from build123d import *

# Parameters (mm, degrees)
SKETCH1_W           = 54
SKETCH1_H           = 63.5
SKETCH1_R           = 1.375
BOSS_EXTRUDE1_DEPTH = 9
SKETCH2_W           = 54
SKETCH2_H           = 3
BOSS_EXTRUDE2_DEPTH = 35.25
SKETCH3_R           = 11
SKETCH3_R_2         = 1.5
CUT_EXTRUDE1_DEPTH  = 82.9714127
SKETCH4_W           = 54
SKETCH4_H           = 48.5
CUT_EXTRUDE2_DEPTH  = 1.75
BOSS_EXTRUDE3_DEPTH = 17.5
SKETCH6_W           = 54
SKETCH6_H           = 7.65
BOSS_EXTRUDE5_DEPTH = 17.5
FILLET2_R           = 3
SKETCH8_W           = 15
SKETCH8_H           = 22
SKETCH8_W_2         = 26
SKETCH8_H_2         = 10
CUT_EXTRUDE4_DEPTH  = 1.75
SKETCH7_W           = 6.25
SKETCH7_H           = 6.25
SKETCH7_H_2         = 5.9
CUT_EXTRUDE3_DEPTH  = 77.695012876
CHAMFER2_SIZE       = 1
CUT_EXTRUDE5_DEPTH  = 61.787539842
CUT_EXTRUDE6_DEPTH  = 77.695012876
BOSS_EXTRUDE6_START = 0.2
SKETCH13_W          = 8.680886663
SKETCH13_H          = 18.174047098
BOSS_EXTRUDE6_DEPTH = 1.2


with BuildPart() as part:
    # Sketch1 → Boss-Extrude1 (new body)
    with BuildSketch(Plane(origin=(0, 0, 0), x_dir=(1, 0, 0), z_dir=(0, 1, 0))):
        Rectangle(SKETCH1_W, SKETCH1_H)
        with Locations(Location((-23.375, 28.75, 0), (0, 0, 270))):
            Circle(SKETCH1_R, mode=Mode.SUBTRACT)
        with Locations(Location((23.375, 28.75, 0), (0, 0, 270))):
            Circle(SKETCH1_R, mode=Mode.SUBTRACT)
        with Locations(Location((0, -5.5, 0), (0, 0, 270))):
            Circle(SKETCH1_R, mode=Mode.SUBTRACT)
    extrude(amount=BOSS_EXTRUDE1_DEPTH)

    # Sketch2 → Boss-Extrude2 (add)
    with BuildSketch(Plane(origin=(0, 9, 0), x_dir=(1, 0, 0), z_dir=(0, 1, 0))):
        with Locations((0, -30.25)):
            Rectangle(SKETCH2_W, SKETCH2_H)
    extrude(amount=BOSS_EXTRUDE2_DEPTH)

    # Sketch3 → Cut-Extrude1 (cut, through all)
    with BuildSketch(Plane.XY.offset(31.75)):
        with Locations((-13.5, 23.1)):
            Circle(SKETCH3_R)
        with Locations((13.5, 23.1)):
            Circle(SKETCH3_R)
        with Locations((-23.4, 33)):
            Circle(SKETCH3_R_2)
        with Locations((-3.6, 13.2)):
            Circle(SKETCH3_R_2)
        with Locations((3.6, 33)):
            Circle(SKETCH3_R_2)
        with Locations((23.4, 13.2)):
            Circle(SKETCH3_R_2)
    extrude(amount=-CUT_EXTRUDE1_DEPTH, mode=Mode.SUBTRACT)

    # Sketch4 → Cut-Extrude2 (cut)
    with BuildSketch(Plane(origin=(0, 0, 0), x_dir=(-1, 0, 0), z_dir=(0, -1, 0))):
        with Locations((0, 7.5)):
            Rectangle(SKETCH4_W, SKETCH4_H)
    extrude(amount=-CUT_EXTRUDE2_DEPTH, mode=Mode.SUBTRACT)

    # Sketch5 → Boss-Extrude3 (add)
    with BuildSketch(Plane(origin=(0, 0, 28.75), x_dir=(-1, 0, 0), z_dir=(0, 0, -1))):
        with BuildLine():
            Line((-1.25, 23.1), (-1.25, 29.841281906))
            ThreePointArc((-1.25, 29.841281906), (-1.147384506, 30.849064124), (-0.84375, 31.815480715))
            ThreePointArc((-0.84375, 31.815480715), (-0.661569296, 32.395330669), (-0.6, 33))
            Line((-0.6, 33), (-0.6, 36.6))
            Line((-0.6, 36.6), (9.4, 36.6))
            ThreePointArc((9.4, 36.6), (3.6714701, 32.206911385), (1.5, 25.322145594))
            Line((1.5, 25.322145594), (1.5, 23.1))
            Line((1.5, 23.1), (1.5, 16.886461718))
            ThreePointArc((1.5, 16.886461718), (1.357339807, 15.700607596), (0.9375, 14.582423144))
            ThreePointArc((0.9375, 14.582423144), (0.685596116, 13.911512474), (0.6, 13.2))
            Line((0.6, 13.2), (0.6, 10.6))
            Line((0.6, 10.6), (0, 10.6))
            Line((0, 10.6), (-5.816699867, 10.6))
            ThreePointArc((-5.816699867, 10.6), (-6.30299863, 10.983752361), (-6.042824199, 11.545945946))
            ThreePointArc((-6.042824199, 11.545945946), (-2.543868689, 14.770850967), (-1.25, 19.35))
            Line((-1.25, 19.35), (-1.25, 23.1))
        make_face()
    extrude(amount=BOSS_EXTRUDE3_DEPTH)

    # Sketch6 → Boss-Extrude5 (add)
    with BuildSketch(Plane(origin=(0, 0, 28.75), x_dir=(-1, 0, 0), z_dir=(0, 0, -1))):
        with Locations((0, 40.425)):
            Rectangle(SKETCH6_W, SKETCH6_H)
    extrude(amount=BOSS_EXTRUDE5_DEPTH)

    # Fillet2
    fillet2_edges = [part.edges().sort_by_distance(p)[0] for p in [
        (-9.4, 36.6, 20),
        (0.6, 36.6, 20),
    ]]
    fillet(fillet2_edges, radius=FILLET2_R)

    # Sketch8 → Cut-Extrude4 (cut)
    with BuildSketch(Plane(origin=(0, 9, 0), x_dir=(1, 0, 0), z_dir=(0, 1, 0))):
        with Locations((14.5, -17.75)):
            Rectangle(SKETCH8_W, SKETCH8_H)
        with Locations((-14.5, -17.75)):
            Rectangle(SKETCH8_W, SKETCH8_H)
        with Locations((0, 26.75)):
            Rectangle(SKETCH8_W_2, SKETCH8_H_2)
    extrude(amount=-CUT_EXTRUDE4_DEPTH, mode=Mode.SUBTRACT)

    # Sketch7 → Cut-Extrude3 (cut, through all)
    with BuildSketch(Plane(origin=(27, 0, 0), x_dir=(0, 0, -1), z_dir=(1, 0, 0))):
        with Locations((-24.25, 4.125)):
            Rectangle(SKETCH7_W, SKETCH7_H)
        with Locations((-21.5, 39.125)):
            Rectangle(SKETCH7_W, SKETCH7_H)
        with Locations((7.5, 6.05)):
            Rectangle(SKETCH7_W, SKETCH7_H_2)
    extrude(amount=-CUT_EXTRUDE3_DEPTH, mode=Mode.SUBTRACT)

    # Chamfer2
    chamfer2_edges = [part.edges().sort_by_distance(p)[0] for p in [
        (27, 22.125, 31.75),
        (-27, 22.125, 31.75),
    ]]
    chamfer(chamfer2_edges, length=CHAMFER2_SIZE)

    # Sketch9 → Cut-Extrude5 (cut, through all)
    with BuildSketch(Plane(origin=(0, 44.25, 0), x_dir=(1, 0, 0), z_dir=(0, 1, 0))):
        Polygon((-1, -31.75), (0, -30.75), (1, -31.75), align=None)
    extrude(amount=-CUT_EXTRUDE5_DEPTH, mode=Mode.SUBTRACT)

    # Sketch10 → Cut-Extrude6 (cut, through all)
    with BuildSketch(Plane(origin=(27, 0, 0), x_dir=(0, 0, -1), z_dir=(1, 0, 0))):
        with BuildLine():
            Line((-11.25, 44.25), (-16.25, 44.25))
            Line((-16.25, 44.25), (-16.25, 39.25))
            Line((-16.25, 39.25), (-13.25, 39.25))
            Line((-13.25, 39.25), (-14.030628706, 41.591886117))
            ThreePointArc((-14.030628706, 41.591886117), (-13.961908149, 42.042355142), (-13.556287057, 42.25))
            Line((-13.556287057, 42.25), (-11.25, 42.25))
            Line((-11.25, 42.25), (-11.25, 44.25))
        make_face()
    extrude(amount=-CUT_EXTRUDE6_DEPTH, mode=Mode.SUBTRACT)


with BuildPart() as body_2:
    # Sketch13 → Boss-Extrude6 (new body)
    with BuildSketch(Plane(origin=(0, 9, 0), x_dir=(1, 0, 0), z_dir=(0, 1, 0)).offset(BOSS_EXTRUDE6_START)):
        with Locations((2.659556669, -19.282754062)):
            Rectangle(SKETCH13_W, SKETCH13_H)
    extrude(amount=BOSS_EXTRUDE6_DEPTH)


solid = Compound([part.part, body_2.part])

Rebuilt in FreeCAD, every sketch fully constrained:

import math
import FreeCAD as App
import Part
import Sketcher
Q = App.Units.Quantity


def edges_at(feature, points):
    """Names of the edges that pass closest to the given points."""
    edges = feature.Shape.Edges
    near = lambda p: min(range(len(edges)), key=lambda i: edges[i].distToShape(Part.Vertex(*p))[0])
    return sorted({f"Edge{near(p) + 1}" for p in points})

doc = App.newDocument("Part")
body = doc.addObject("PartDesign::Body", "Body")

# Sketch on XZ plane
sketch1 = body.newObject("Sketcher::SketchObject", "Sketch")
sketch1.AttachmentSupport = (doc.getObject("XZ_Plane"), [""])
sketch1.MapMode = "FlatFace"
sketch1.addGeometry(Part.LineSegment(App.Vector(-27, -31.8, 0), App.Vector(-27, 31.8, 0)), False)
sketch1.addGeometry(Part.LineSegment(App.Vector(-27, 31.8, 0), App.Vector(27, 31.8, 0)), False)
sketch1.addGeometry(Part.LineSegment(App.Vector(27, 31.8, 0), App.Vector(27, -31.8, 0)), False)
sketch1.addGeometry(Part.LineSegment(App.Vector(27, -31.8, 0), App.Vector(-27, -31.8, 0)), False)
sketch1.addGeometry(Part.Circle(App.Vector(0, 5.5, 0), App.Vector(0, 0, 1), 1.4), False)
sketch1.addGeometry(Part.Circle(App.Vector(-23.4, -28.8, 0), App.Vector(0, 0, 1), 1.4), False)
sketch1.addGeometry(Part.Circle(App.Vector(23.4, -28.8, 0), App.Vector(0, 0, 1), 1.4), False)
sketch1.addConstraint(Sketcher.Constraint("Coincident", 0, 2, 1, 1))
sketch1.addConstraint(Sketcher.Constraint("Coincident", 1, 2, 2, 1))
sketch1.addConstraint(Sketcher.Constraint("Coincident", 2, 2, 3, 1))
sketch1.addConstraint(Sketcher.Constraint("Coincident", 3, 2, 0, 1))
sketch1.addConstraint(Sketcher.Constraint("Vertical", 0))
sketch1.addConstraint(Sketcher.Constraint("Horizontal", 1))
sketch1.addConstraint(Sketcher.Constraint("Vertical", 2))
sketch1.addConstraint(Sketcher.Constraint("Horizontal", 3))
sketch1.addConstraint(Sketcher.Constraint("Equal", 4, 5))
sketch1.addConstraint(Sketcher.Constraint("Equal", 5, 6))
sketch1.addConstraint(Sketcher.Constraint("Symmetric", 0, 2, 2, 2, -1, 1))
sketch1.addConstraint(Sketcher.Constraint("Symmetric", 5, 3, 6, 3, -2))
sketch1.addConstraint(Sketcher.Constraint("PointOnObject", 4, 3, -2))
sketch1.addConstraint(Sketcher.Constraint("Diameter", 4, Q("2.75 mm")))
sketch1.addConstraint(Sketcher.Constraint("DistanceX", 1, 1, 1, 2, Q("54 mm")))
sketch1.addConstraint(Sketcher.Constraint("DistanceY", 0, 1, 0, 2, Q("63.5 mm")))
sketch1.addConstraint(Sketcher.Constraint("DistanceY", 2, 2, 6, 3, Q("3 mm")))
sketch1.addConstraint(Sketcher.Constraint("DistanceY", -1, 1, 4, 3, Q("5.5 mm")))
sketch1.addConstraint(Sketcher.Constraint("DistanceX", 5, 3, 6, 3, Q("46.75 mm")))
pad1 = body.newObject("PartDesign::Pad", "Pad")
pad1.Profile = sketch1
pad1.Length = 9
pad1.Reversed = True

# Sketch on XZ plane
sketch2 = body.newObject("Sketcher::SketchObject", "Sketch001")
sketch2.AttachmentSupport = (doc.getObject("XZ_Plane"), [""])
sketch2.MapMode = "FlatFace"
sketch2.AttachmentOffset = App.Placement(App.Vector(0, 0, -9), App.Rotation())
sketch2.addGeometry(Part.LineSegment(App.Vector(-27, 28.8, 0), App.Vector(-27, 31.8, 0)), False)
sketch2.addGeometry(Part.LineSegment(App.Vector(-27, 31.8, 0), App.Vector(27, 31.8, 0)), False)
sketch2.addGeometry(Part.LineSegment(App.Vector(27, 31.8, 0), App.Vector(27, 28.8, 0)), False)
sketch2.addGeometry(Part.LineSegment(App.Vector(27, 28.8, 0), App.Vector(-27, 28.8, 0)), False)
sketch2.addConstraint(Sketcher.Constraint("Coincident", 0, 2, 1, 1))
sketch2.addConstraint(Sketcher.Constraint("Coincident", 1, 2, 2, 1))
sketch2.addConstraint(Sketcher.Constraint("Coincident", 2, 2, 3, 1))
sketch2.addConstraint(Sketcher.Constraint("Coincident", 3, 2, 0, 1))
sketch2.addConstraint(Sketcher.Constraint("Vertical", 0))
sketch2.addConstraint(Sketcher.Constraint("Horizontal", 1))
sketch2.addConstraint(Sketcher.Constraint("Vertical", 2))
sketch2.addConstraint(Sketcher.Constraint("Horizontal", 3))
sketch2.addConstraint(Sketcher.Constraint("DistanceX", 1, 1, 1, 2, Q("54 mm")))
sketch2.addConstraint(Sketcher.Constraint("DistanceY", 0, 1, 0, 2, Q("3 mm")))
sketch2.addConstraint(Sketcher.Constraint("DistanceX", 0, 2, -1, 1, Q("27 mm")))
sketch2.addConstraint(Sketcher.Constraint("DistanceY", -1, 1, 0, 2, Q("31.75 mm")))
pad2 = body.newObject("PartDesign::Pad", "Pad001")
pad2.Profile = sketch2
pad2.Length = 35.25
pad2.Reversed = True

# Sketch on XY plane
sketch3 = body.newObject("Sketcher::SketchObject", "Sketch002")
sketch3.AttachmentSupport = (doc.getObject("XY_Plane"), [""])
sketch3.MapMode = "FlatFace"
sketch3.AttachmentOffset = App.Placement(App.Vector(0, 0, 31.75), App.Rotation())
sketch3.addGeometry(Part.Circle(App.Vector(-13.5, 23.1, 0), App.Vector(0, 0, 1), 11), False)
sketch3.addGeometry(Part.Circle(App.Vector(13.5, 23.1, 0), App.Vector(0, 0, 1), 11), False)
sketch3.addGeometry(Part.Circle(App.Vector(-23.4, 33, 0), App.Vector(0, 0, 1), 1.5), False)
sketch3.addGeometry(Part.Circle(App.Vector(-3.6, 13.2, 0), App.Vector(0, 0, 1), 1.5), False)
sketch3.addGeometry(Part.Circle(App.Vector(3.6, 33, 0), App.Vector(0, 0, 1), 1.5), False)
sketch3.addGeometry(Part.Circle(App.Vector(23.4, 13.2, 0), App.Vector(0, 0, 1), 1.5), False)
sketch3.addConstraint(Sketcher.Constraint("Equal", 0, 1))
sketch3.addConstraint(Sketcher.Constraint("Equal", 2, 3))
sketch3.addConstraint(Sketcher.Constraint("Equal", 3, 4))
sketch3.addConstraint(Sketcher.Constraint("Equal", 4, 5))
sketch3.addConstraint(Sketcher.Constraint("Symmetric", 0, 3, 1, 3, -2))
sketch3.addConstraint(Sketcher.Constraint("Horizontal", 2, 3, 4, 3))
sketch3.addConstraint(Sketcher.Constraint("Horizontal", 3, 3, 5, 3))
sketch3.addConstraint(Sketcher.Constraint("Diameter", 0, Q("22 mm")))
sketch3.addConstraint(Sketcher.Constraint("Diameter", 2, Q("3 mm")))
sketch3.addConstraint(Sketcher.Constraint("DistanceY", -1, 1, 2, 3, Q("33 mm")))
sketch3.addConstraint(Sketcher.Constraint("DistanceX", 0, 3, 1, 3, Q("27 mm")))
sketch3.addConstraint(Sketcher.Constraint("DistanceX", 2, 3, 4, 3, Q("27 mm")))
sketch3.addConstraint(Sketcher.Constraint("DistanceX", 3, 3, 5, 3, Q("27 mm")))
sketch3.addConstraint(Sketcher.Constraint("DistanceY", -1, 1, 0, 3, Q("23.1 mm")))
sketch3.addConstraint(Sketcher.Constraint("DistanceX", 2, 3, -1, 1, Q("23.4 mm")))
sketch3.addConstraint(Sketcher.Constraint("DistanceX", 3, 3, -1, 1, Q("3.6 mm")))
sketch3.addConstraint(Sketcher.Constraint("DistanceY", -1, 1, 3, 3, Q("13.2 mm")))
pocket1 = body.newObject("PartDesign::Pocket", "Pocket")
pocket1.Profile = sketch3
pocket1.Type = "ThroughAll"

# Sketch on XZ plane
sketch4 = body.newObject("Sketcher::SketchObject", "Sketch003")
sketch4.AttachmentSupport = (doc.getObject("XZ_Plane"), [""])
sketch4.MapMode = "FlatFace"
sketch4.addGeometry(Part.LineSegment(App.Vector(27, -32, 0), App.Vector(27, 17, 0)), False)
sketch4.addGeometry(Part.LineSegment(App.Vector(27, 17, 0), App.Vector(-27, 17, 0)), False)
sketch4.addGeometry(Part.LineSegment(App.Vector(-27, 17, 0), App.Vector(-27, -32, 0)), False)
sketch4.addGeometry(Part.LineSegment(App.Vector(-27, -32, 0), App.Vector(27, -32, 0)), False)
sketch4.addConstraint(Sketcher.Constraint("Coincident", 0, 2, 1, 1))
sketch4.addConstraint(Sketcher.Constraint("Coincident", 1, 2, 2, 1))
sketch4.addConstraint(Sketcher.Constraint("Coincident", 2, 2, 3, 1))
sketch4.addConstraint(Sketcher.Constraint("Coincident", 3, 2, 0, 1))
sketch4.addConstraint(Sketcher.Constraint("Vertical", 0))
sketch4.addConstraint(Sketcher.Constraint("Horizontal", 1))
sketch4.addConstraint(Sketcher.Constraint("Vertical", 2))
sketch4.addConstraint(Sketcher.Constraint("Horizontal", 3))
sketch4.addConstraint(Sketcher.Constraint("DistanceX", 1, 2, 1, 1, Q("54 mm")))
sketch4.addConstraint(Sketcher.Constraint("DistanceY", 0, 1, 0, 2, Q("48.5 mm")))
sketch4.addConstraint(Sketcher.Constraint("DistanceX", -1, 1, 0, 2, Q("27 mm")))
sketch4.addConstraint(Sketcher.Constraint("DistanceY", -1, 1, 0, 2, Q("16.75 mm")))
pocket2 = body.newObject("PartDesign::Pocket", "Pocket001")
pocket2.Profile = sketch4
pocket2.Length = 1.75

# Sketch on XY plane
sketch5 = body.newObject("Sketcher::SketchObject", "Sketch004")
sketch5.AttachmentSupport = (doc.getObject("XY_Plane"), [""])
sketch5.MapMode = "FlatFace"
sketch5.AttachmentOffset = App.Placement(App.Vector(0, 0, 28.75), App.Rotation())
sketch5.addGeometry(Part.ArcOfCircle(Part.Circle(App.Vector(-3.8, 29.8, 0), App.Vector(0, 0, 1), 5), math.radians(0), math.radians(23)), False)
sketch5.addGeometry(Part.LineSegment(App.Vector(1.2, 29.8, 0), App.Vector(1.2, 19.4, 0)), False)
sketch5.addGeometry(Part.ArcOfCircle(Part.Circle(App.Vector(10, 19.4, 0), App.Vector(0, 0, 1), 8.8), math.radians(-180), math.radians(-117)), False)
sketch5.addGeometry(Part.ArcOfCircle(Part.Circle(App.Vector(5.8, 11.1, 0), App.Vector(0, 0, 1), 0.5), math.radians(-90), math.radians(63)), False)
sketch5.addGeometry(Part.LineSegment(App.Vector(5.8, 10.6, 0), App.Vector(-0.6, 10.6, 0)), False)
sketch5.addGeometry(Part.LineSegment(App.Vector(-0.6, 10.6, 0), App.Vector(-0.6, 13.2, 0)), False)
sketch5.addGeometry(Part.ArcOfCircle(Part.Circle(App.Vector(-3.6, 13.2, 0), App.Vector(0, 0, 1), 3), math.radians(0), math.radians(27)), False)
sketch5.addGeometry(Part.ArcOfCircle(Part.Circle(App.Vector(3.5, 16.9, 0), App.Vector(0, 0, 1), 5), math.radians(-180), math.radians(-153)), False)
sketch5.addGeometry(Part.LineSegment(App.Vector(-1.5, 16.9, 0), App.Vector(-1.5, 25.3, 0)), False)
sketch5.addGeometry(Part.ArcOfCircle(Part.Circle(App.Vector(-13.5, 25.3, 0), App.Vector(0, 0, 1), 12), math.radians(0), math.radians(70)), False)
sketch5.addGeometry(Part.LineSegment(App.Vector(-9.4, 36.6, 0), App.Vector(0.6, 36.6, 0)), False)
sketch5.addGeometry(Part.LineSegment(App.Vector(0.6, 36.6, 0), App.Vector(0.6, 33, 0)), False)
sketch5.addGeometry(Part.ArcOfCircle(Part.Circle(App.Vector(3.6, 33, 0), App.Vector(0, 0, 1), 3), math.radians(180), math.radians(203)), False)
sketch5.addConstraint(Sketcher.Constraint("Tangent", 0, 1, 1, 1))
sketch5.addConstraint(Sketcher.Constraint("Tangent", 1, 2, 2, 1))
sketch5.addConstraint(Sketcher.Constraint("Tangent", 2, 2, 3, 2))
sketch5.addConstraint(Sketcher.Constraint("Tangent", 3, 1, 4, 1))
sketch5.addConstraint(Sketcher.Constraint("Coincident", 4, 2, 5, 1))
sketch5.addConstraint(Sketcher.Constraint("Tangent", 5, 2, 6, 1))
sketch5.addConstraint(Sketcher.Constraint("Tangent", 6, 2, 7, 2))
sketch5.addConstraint(Sketcher.Constraint("Tangent", 7, 1, 8, 1))
sketch5.addConstraint(Sketcher.Constraint("Tangent", 8, 2, 9, 1))
sketch5.addConstraint(Sketcher.Constraint("Coincident", 9, 2, 10, 1))
sketch5.addConstraint(Sketcher.Constraint("Coincident", 10, 2, 11, 1))
sketch5.addConstraint(Sketcher.Constraint("Tangent", 11, 2, 12, 1))
sketch5.addConstraint(Sketcher.Constraint("Tangent", 12, 2, 0, 2))
sketch5.addConstraint(Sketcher.Constraint("Vertical", 1))
sketch5.addConstraint(Sketcher.Constraint("Horizontal", 4))
sketch5.addConstraint(Sketcher.Constraint("Vertical", 5))
sketch5.addConstraint(Sketcher.Constraint("Vertical", 8))
sketch5.addConstraint(Sketcher.Constraint("Horizontal", 10))
sketch5.addConstraint(Sketcher.Constraint("Vertical", 11))
sketch5.addConstraint(Sketcher.Constraint("Equal", 0, 7))
sketch5.addConstraint(Sketcher.Constraint("Equal", 6, 12))
sketch5.addConstraint(Sketcher.Constraint("Radius", 0, Q("5 mm")))
sketch5.addConstraint(Sketcher.Constraint("Radius", 6, Q("3 mm")))
sketch5.addConstraint(Sketcher.Constraint("Radius", 9, Q("12 mm")))
sketch5.addConstraint(Sketcher.Constraint("Radius", 3, Q("0.5 mm")))
sketch5.addConstraint(Sketcher.Constraint("DistanceX", 10, 1, 10, 2, Q("10 mm")))
sketch5.addConstraint(Sketcher.Constraint("Radius", 2, Q("8.75 mm")))
sketch5.addConstraint(Sketcher.Constraint("DistanceY", 5, 1, 5, 2, Q("2.6 mm")))
sketch5.addConstraint(Sketcher.Constraint("DistanceY", 11, 2, 11, 1, Q("3.6 mm")))
sketch5.addConstraint(Sketcher.Constraint("DistanceX", -1, 1, 2, 3, Q("10 mm")))
sketch5.addConstraint(Sketcher.Constraint("DistanceY", -1, 1, 12, 3, Q("33 mm")))
sketch5.addConstraint(Sketcher.Constraint("DistanceY", -1, 1, 3, 3, Q("11.1 mm")))
sketch5.addConstraint(Sketcher.Constraint("DistanceX", 6, 3, -1, 1, Q("3.6 mm")))
sketch5.addConstraint(Sketcher.Constraint("DistanceX", -1, 1, 7, 3, Q("3.5 mm")))
sketch5.addConstraint(Sketcher.Constraint("DistanceX", -1, 1, 12, 3, Q("3.6 mm")))
sketch5.addConstraint(Sketcher.Constraint("DistanceY", -1, 1, 2, 3, Q("19.35 mm")))
pad3 = body.newObject("PartDesign::Pad", "Pad002")
pad3.Profile = sketch5
pad3.Length = 17.5
pad3.Reversed = True

# Sketch on XY plane
sketch6 = body.newObject("Sketcher::SketchObject", "Sketch005")
sketch6.AttachmentSupport = (doc.getObject("XY_Plane"), [""])
sketch6.MapMode = "FlatFace"
sketch6.AttachmentOffset = App.Placement(App.Vector(0, 0, 28.75), App.Rotation())
sketch6.addGeometry(Part.LineSegment(App.Vector(27, 44, 0), App.Vector(27, 37, 0)), False)
sketch6.addGeometry(Part.LineSegment(App.Vector(27, 37, 0), App.Vector(-27, 37, 0)), False)
sketch6.addGeometry(Part.LineSegment(App.Vector(-27, 37, 0), App.Vector(-27, 44, 0)), False)
sketch6.addGeometry(Part.LineSegment(App.Vector(-27, 44, 0), App.Vector(27, 44, 0)), False)
sketch6.addConstraint(Sketcher.Constraint("Coincident", 0, 2, 1, 1))
sketch6.addConstraint(Sketcher.Constraint("Coincident", 1, 2, 2, 1))
sketch6.addConstraint(Sketcher.Constraint("Coincident", 2, 2, 3, 1))
sketch6.addConstraint(Sketcher.Constraint("Coincident", 3, 2, 0, 1))
sketch6.addConstraint(Sketcher.Constraint("Vertical", 0))
sketch6.addConstraint(Sketcher.Constraint("Horizontal", 1))
sketch6.addConstraint(Sketcher.Constraint("Vertical", 2))
sketch6.addConstraint(Sketcher.Constraint("Horizontal", 3))
sketch6.addConstraint(Sketcher.Constraint("DistanceX", 1, 2, 1, 1, Q("54 mm")))
sketch6.addConstraint(Sketcher.Constraint("DistanceX", -1, 1, 0, 2, Q("27 mm")))
sketch6.addConstraint(Sketcher.Constraint("DistanceY", 0, 2, 0, 1, Q("7.65 mm")))
sketch6.addConstraint(Sketcher.Constraint("DistanceY", -1, 1, 0, 2, Q("36.6 mm")))
pad4 = body.newObject("PartDesign::Pad", "Pad003")
pad4.Profile = sketch6
pad4.Length = 17.5
pad4.Reversed = True
doc.recompute()

fillet = body.newObject("PartDesign::Fillet", "Fillet")
fillet.Base = (pad4, edges_at(pad4, [(-9.4, 36.6, 20), (0.6, 36.6, 20)]))
fillet.Radius = 3

# Sketch on XZ plane
sketch7 = body.newObject("Sketcher::SketchObject", "Sketch006")
sketch7.AttachmentSupport = (doc.getObject("XZ_Plane"), [""])
sketch7.MapMode = "FlatFace"
sketch7.AttachmentOffset = App.Placement(App.Vector(0, 0, -9), App.Rotation())
sketch7.addGeometry(Part.LineSegment(App.Vector(7, 7, 0), App.Vector(7, 29, 0)), False)
sketch7.addGeometry(Part.LineSegment(App.Vector(7, 29, 0), App.Vector(22, 29, 0)), False)
sketch7.addGeometry(Part.LineSegment(App.Vector(22, 29, 0), App.Vector(22, 7, 0)), False)
sketch7.addGeometry(Part.LineSegment(App.Vector(22, 7, 0), App.Vector(7, 7, 0)), False)
sketch7.addGeometry(Part.LineSegment(App.Vector(-22, 7, 0), App.Vector(-22, 29, 0)), False)
sketch7.addGeometry(Part.LineSegment(App.Vector(-22, 29, 0), App.Vector(-7, 29, 0)), False)
sketch7.addGeometry(Part.LineSegment(App.Vector(-7, 29, 0), App.Vector(-7, 7, 0)), False)
sketch7.addGeometry(Part.LineSegment(App.Vector(-7, 7, 0), App.Vector(-22, 7, 0)), False)
sketch7.addGeometry(Part.LineSegment(App.Vector(-13, -32, 0), App.Vector(-13, -22, 0)), False)
sketch7.addGeometry(Part.LineSegment(App.Vector(-13, -22, 0), App.Vector(13, -22, 0)), False)
sketch7.addGeometry(Part.LineSegment(App.Vector(13, -22, 0), App.Vector(13, -32, 0)), False)
sketch7.addGeometry(Part.LineSegment(App.Vector(13, -32, 0), App.Vector(-13, -32, 0)), False)
sketch7.addConstraint(Sketcher.Constraint("Coincident", 0, 2, 1, 1))
sketch7.addConstraint(Sketcher.Constraint("Coincident", 1, 2, 2, 1))
sketch7.addConstraint(Sketcher.Constraint("Coincident", 2, 2, 3, 1))
sketch7.addConstraint(Sketcher.Constraint("Coincident", 3, 2, 0, 1))
sketch7.addConstraint(Sketcher.Constraint("Coincident", 4, 2, 5, 1))
sketch7.addConstraint(Sketcher.Constraint("Coincident", 5, 2, 6, 1))
sketch7.addConstraint(Sketcher.Constraint("Coincident", 6, 2, 7, 1))
sketch7.addConstraint(Sketcher.Constraint("Coincident", 7, 2, 4, 1))
sketch7.addConstraint(Sketcher.Constraint("Coincident", 8, 2, 9, 1))
sketch7.addConstraint(Sketcher.Constraint("Coincident", 9, 2, 10, 1))
sketch7.addConstraint(Sketcher.Constraint("Coincident", 10, 2, 11, 1))
sketch7.addConstraint(Sketcher.Constraint("Coincident", 11, 2, 8, 1))
sketch7.addConstraint(Sketcher.Constraint("Vertical", 0))
sketch7.addConstraint(Sketcher.Constraint("Horizontal", 1))
sketch7.addConstraint(Sketcher.Constraint("Vertical", 2))
sketch7.addConstraint(Sketcher.Constraint("Horizontal", 3))
sketch7.addConstraint(Sketcher.Constraint("Vertical", 4))
sketch7.addConstraint(Sketcher.Constraint("Horizontal", 5))
sketch7.addConstraint(Sketcher.Constraint("Vertical", 6))
sketch7.addConstraint(Sketcher.Constraint("Horizontal", 7))
sketch7.addConstraint(Sketcher.Constraint("Vertical", 8))
sketch7.addConstraint(Sketcher.Constraint("Horizontal", 9))
sketch7.addConstraint(Sketcher.Constraint("Vertical", 10))
sketch7.addConstraint(Sketcher.Constraint("Horizontal", 11))
sketch7.addConstraint(Sketcher.Constraint("Symmetric", 1, 2, 4, 2, -2))
sketch7.addConstraint(Sketcher.Constraint("Symmetric", 3, 2, 6, 2, -2))
sketch7.addConstraint(Sketcher.Constraint("DistanceX", 1, 1, 1, 2, Q("15 mm")))
sketch7.addConstraint(Sketcher.Constraint("DistanceX", 9, 1, 9, 2, Q("26 mm")))
sketch7.addConstraint(Sketcher.Constraint("DistanceY", 0, 1, 0, 2, Q("22 mm")))
sketch7.addConstraint(Sketcher.Constraint("DistanceY", 8, 1, 8, 2, Q("10 mm")))
sketch7.addConstraint(Sketcher.Constraint("DistanceX", -1, 1, 0, 2, Q("7 mm")))
sketch7.addConstraint(Sketcher.Constraint("DistanceX", 8, 2, -1, 1, Q("13 mm")))
sketch7.addConstraint(Sketcher.Constraint("DistanceY", 8, 2, 6, 2, Q("28.5 mm")))
sketch7.addConstraint(Sketcher.Constraint("DistanceY", -1, 1, 0, 2, Q("28.75 mm")))
pocket3 = body.newObject("PartDesign::Pocket", "Pocket002")
pocket3.Profile = sketch7
pocket3.Length = 1.75
pocket3.Reversed = True

# Sketch on YZ plane
sketch8 = body.newObject("Sketcher::SketchObject", "Sketch007")
sketch8.AttachmentSupport = (doc.getObject("YZ_Plane"), [""])
sketch8.MapMode = "FlatFace"
sketch8.AttachmentOffset = App.Placement(App.Vector(0, 0, 27), App.Rotation())
sketch8.addGeometry(Part.LineSegment(App.Vector(7, 27, 0), App.Vector(1, 27, 0)), False)
sketch8.addGeometry(Part.LineSegment(App.Vector(1, 27, 0), App.Vector(1, 21, 0)), False)
sketch8.addGeometry(Part.LineSegment(App.Vector(1, 21, 0), App.Vector(7, 21, 0)), False)
sketch8.addGeometry(Part.LineSegment(App.Vector(7, 21, 0), App.Vector(7, 27, 0)), False)
sketch8.addGeometry(Part.LineSegment(App.Vector(42, 25, 0), App.Vector(36, 25, 0)), False)
sketch8.addGeometry(Part.LineSegment(App.Vector(36, 25, 0), App.Vector(36, 18, 0)), False)
sketch8.addGeometry(Part.LineSegment(App.Vector(36, 18, 0), App.Vector(42, 18, 0)), False)
sketch8.addGeometry(Part.LineSegment(App.Vector(42, 18, 0), App.Vector(42, 25, 0)), False)
sketch8.addGeometry(Part.LineSegment(App.Vector(9, -4, 0), App.Vector(3, -4, 0)), False)
sketch8.addGeometry(Part.LineSegment(App.Vector(3, -4, 0), App.Vector(3, -11, 0)), False)
sketch8.addGeometry(Part.LineSegment(App.Vector(3, -11, 0), App.Vector(9, -11, 0)), False)
sketch8.addGeometry(Part.LineSegment(App.Vector(9, -11, 0), App.Vector(9, -4, 0)), False)
sketch8.addConstraint(Sketcher.Constraint("Coincident", 0, 2, 1, 1))
sketch8.addConstraint(Sketcher.Constraint("Coincident", 1, 2, 2, 1))
sketch8.addConstraint(Sketcher.Constraint("Coincident", 2, 2, 3, 1))
sketch8.addConstraint(Sketcher.Constraint("Coincident", 3, 2, 0, 1))
sketch8.addConstraint(Sketcher.Constraint("Coincident", 4, 2, 5, 1))
sketch8.addConstraint(Sketcher.Constraint("Coincident", 5, 2, 6, 1))
sketch8.addConstraint(Sketcher.Constraint("Coincident", 6, 2, 7, 1))
sketch8.addConstraint(Sketcher.Constraint("Coincident", 7, 2, 4, 1))
sketch8.addConstraint(Sketcher.Constraint("Coincident", 8, 2, 9, 1))
sketch8.addConstraint(Sketcher.Constraint("Coincident", 9, 2, 10, 1))
sketch8.addConstraint(Sketcher.Constraint("Coincident", 10, 2, 11, 1))
sketch8.addConstraint(Sketcher.Constraint("Coincident", 11, 2, 8, 1))
sketch8.addConstraint(Sketcher.Constraint("Horizontal", 0))
sketch8.addConstraint(Sketcher.Constraint("Vertical", 1))
sketch8.addConstraint(Sketcher.Constraint("Horizontal", 2))
sketch8.addConstraint(Sketcher.Constraint("Vertical", 3))
sketch8.addConstraint(Sketcher.Constraint("Horizontal", 4))
sketch8.addConstraint(Sketcher.Constraint("Vertical", 5))
sketch8.addConstraint(Sketcher.Constraint("Horizontal", 6))
sketch8.addConstraint(Sketcher.Constraint("Vertical", 7))
sketch8.addConstraint(Sketcher.Constraint("Horizontal", 8))
sketch8.addConstraint(Sketcher.Constraint("Vertical", 9))
sketch8.addConstraint(Sketcher.Constraint("Horizontal", 10))
sketch8.addConstraint(Sketcher.Constraint("Vertical", 11))
sketch8.addConstraint(Sketcher.Constraint("Equal", 2, 4))
sketch8.addConstraint(Sketcher.Constraint("Equal", 6, 1))
sketch8.addConstraint(Sketcher.Constraint("Equal", 3, 5))
sketch8.addConstraint(Sketcher.Constraint("Equal", 7, 9))
sketch8.addConstraint(Sketcher.Constraint("DistanceX", 8, 2, 8, 1, Q("5.9 mm")))
sketch8.addConstraint(Sketcher.Constraint("DistanceX", -1, 1, 0, 2, Q("1 mm")))
sketch8.addConstraint(Sketcher.Constraint("DistanceX", -1, 1, 4, 2, Q("36 mm")))
sketch8.addConstraint(Sketcher.Constraint("DistanceX", -1, 1, 10, 2, Q("9 mm")))
sketch8.addConstraint(Sketcher.Constraint("DistanceY", 5, 2, 3, 2, Q("9 mm")))
sketch8.addConstraint(Sketcher.Constraint("DistanceY", 9, 2, 0, 2, Q("38 mm")))
sketch8.addConstraint(Sketcher.Constraint("DistanceX", 0, 2, 0, 1, Q("6.25 mm")))
sketch8.addConstraint(Sketcher.Constraint("DistanceY", -1, 1, 0, 2, Q("27.375 mm")))
pocket4 = body.newObject("PartDesign::Pocket", "Pocket003")
pocket4.Profile = sketch8
pocket4.Type = "ThroughAll"
doc.recompute()

chamfer = body.newObject("PartDesign::Chamfer", "Chamfer")
chamfer.Base = (pocket4, edges_at(pocket4, [(27, 22.125, 31.75), (-27, 22.125, 31.75)]))
chamfer.Size = 1

# Sketch on XZ plane
sketch9 = body.newObject("Sketcher::SketchObject", "Sketch008")
sketch9.AttachmentSupport = (doc.getObject("XZ_Plane"), [""])
sketch9.MapMode = "FlatFace"
sketch9.AttachmentOffset = App.Placement(App.Vector(0, 0, -44.25), App.Rotation())
sketch9.addGeometry(Part.LineSegment(App.Vector(0, 30.8, 0), App.Vector(-1, 31.8, 0)), False)
sketch9.addGeometry(Part.LineSegment(App.Vector(-1, 31.8, 0), App.Vector(1, 31.8, 0)), False)
sketch9.addGeometry(Part.LineSegment(App.Vector(1, 31.8, 0), App.Vector(0, 30.8, 0)), False)
sketch9.addConstraint(Sketcher.Constraint("Coincident", 0, 2, 1, 1))
sketch9.addConstraint(Sketcher.Constraint("Coincident", 1, 2, 2, 1))
sketch9.addConstraint(Sketcher.Constraint("Coincident", 2, 2, 0, 1))
sketch9.addConstraint(Sketcher.Constraint("Horizontal", 1))
sketch9.addConstraint(Sketcher.Constraint("PointOnObject", 2, 2, -2))
sketch9.addConstraint(Sketcher.Constraint("Perpendicular", 0, 2))
sketch9.addConstraint(Sketcher.Constraint("Equal", 0, 2))
sketch9.addConstraint(Sketcher.Constraint("DistanceX", 1, 1, 1, 2, Q("2 mm")))
sketch9.addConstraint(Sketcher.Constraint("DistanceY", -1, 1, 0, 2, Q("31.75 mm")))
pocket5 = body.newObject("PartDesign::Pocket", "Pocket004")
pocket5.Profile = sketch9
pocket5.Type = "ThroughAll"
pocket5.Reversed = True

# Sketch on YZ plane
sketch10 = body.newObject("Sketcher::SketchObject", "Sketch009")
sketch10.AttachmentSupport = (doc.getObject("YZ_Plane"), [""])
sketch10.MapMode = "FlatFace"
sketch10.AttachmentOffset = App.Placement(App.Vector(0, 0, 27), App.Rotation())
sketch10.addGeometry(Part.LineSegment(App.Vector(44.2, 11.2, 0), App.Vector(44.2, 16.2, 0)), False)
sketch10.addGeometry(Part.LineSegment(App.Vector(44.2, 16.2, 0), App.Vector(39.2, 16.2, 0)), False)
sketch10.addGeometry(Part.LineSegment(App.Vector(39.2, 16.2, 0), App.Vector(39.2, 13.2, 0)), False)
sketch10.addGeometry(Part.LineSegment(App.Vector(39.2, 13.2, 0), App.Vector(41.6, 14, 0)), False)
sketch10.addGeometry(Part.ArcOfCircle(Part.Circle(App.Vector(41.7, 13.6, 0), App.Vector(0, 0, 1), 0.5), math.radians(0), math.radians(108)), False)
sketch10.addGeometry(Part.LineSegment(App.Vector(42.2, 13.6, 0), App.Vector(42.2, 11.2, 0)), False)
sketch10.addGeometry(Part.LineSegment(App.Vector(42.2, 11.2, 0), App.Vector(44.2, 11.2, 0)), False)
sketch10.addConstraint(Sketcher.Constraint("Coincident", 0, 2, 1, 1))
sketch10.addConstraint(Sketcher.Constraint("Coincident", 1, 2, 2, 1))
sketch10.addConstraint(Sketcher.Constraint("Coincident", 2, 2, 3, 1))
sketch10.addConstraint(Sketcher.Constraint("Tangent", 3, 2, 4, 2))
sketch10.addConstraint(Sketcher.Constraint("Tangent", 4, 1, 5, 1))
sketch10.addConstraint(Sketcher.Constraint("Coincident", 5, 2, 6, 1))
sketch10.addConstraint(Sketcher.Constraint("Coincident", 6, 2, 0, 1))
sketch10.addConstraint(Sketcher.Constraint("Vertical", 0))
sketch10.addConstraint(Sketcher.Constraint("Horizontal", 1))
sketch10.addConstraint(Sketcher.Constraint("Vertical", 2))
sketch10.addConstraint(Sketcher.Constraint("Vertical", 5))
sketch10.addConstraint(Sketcher.Constraint("Horizontal", 6))
sketch10.addConstraint(Sketcher.Constraint("Equal", 1, 0))
sketch10.addConstraint(Sketcher.Constraint("Radius", 4, Q("0.5 mm")))
sketch10.addConstraint(Sketcher.Constraint("DistanceX", 1, 2, 1, 1, Q("5 mm")))
sketch10.addConstraint(Sketcher.Constraint("DistanceX", 6, 1, 6, 2, Q("2 mm")))
sketch10.addConstraint(Sketcher.Constraint("DistanceY", 2, 2, 2, 1, Q("3 mm")))
sketch10.addConstraint(Sketcher.Constraint("DistanceX", -1, 1, 4, 3, Q("41.75 mm")))
sketch10.addConstraint(Sketcher.Constraint("DistanceY", -1, 1, 0, 2, Q("16.25 mm")))
sketch10.addConstraint(Sketcher.Constraint("DistanceY", 5, 2, 5, 1, Q("2.306287 mm")))
pocket6 = body.newObject("PartDesign::Pocket", "Pocket005")
pocket6.Profile = sketch10
pocket6.Type = "ThroughAll"
body2 = doc.addObject("PartDesign::Body", "Body001")

# Sketch on XZ plane
sketch11 = body2.newObject("Sketcher::SketchObject", "Sketch010")
sketch11.AttachmentSupport = (doc.getObject("XZ_Plane001"), [""])
sketch11.MapMode = "FlatFace"
sketch11.AttachmentOffset = App.Placement(App.Vector(0, 0, -9.2), App.Rotation())
sketch11.addGeometry(Part.LineSegment(App.Vector(-2, 10, 0), App.Vector(-2, 28, 0)), False)
sketch11.addGeometry(Part.LineSegment(App.Vector(-2, 28, 0), App.Vector(7, 28, 0)), False)
sketch11.addGeometry(Part.LineSegment(App.Vector(7, 28, 0), App.Vector(7, 10, 0)), False)
sketch11.addGeometry(Part.LineSegment(App.Vector(7, 10, 0), App.Vector(-2, 10, 0)), False)
sketch11.addConstraint(Sketcher.Constraint("Coincident", 0, 2, 1, 1))
sketch11.addConstraint(Sketcher.Constraint("Coincident", 1, 2, 2, 1))
sketch11.addConstraint(Sketcher.Constraint("Coincident", 2, 2, 3, 1))
sketch11.addConstraint(Sketcher.Constraint("Coincident", 3, 2, 0, 1))
sketch11.addConstraint(Sketcher.Constraint("Vertical", 0))
sketch11.addConstraint(Sketcher.Constraint("Horizontal", 1))
sketch11.addConstraint(Sketcher.Constraint("Vertical", 2))
sketch11.addConstraint(Sketcher.Constraint("Horizontal", 3))
sketch11.addConstraint(Sketcher.Constraint("DistanceX", -1, 1, 1, 2, Q("7 mm")))
sketch11.addConstraint(Sketcher.Constraint("DistanceX", 1, 1, 1, 2, Q("8.680887 mm")))
sketch11.addConstraint(Sketcher.Constraint("DistanceY", 0, 1, 0, 2, Q("18.174047 mm")))
sketch11.addConstraint(Sketcher.Constraint("DistanceY", -1, 1, 2, 2, Q("10.195731 mm")))
pad5 = body2.newObject("PartDesign::Pad", "Pad004")
pad5.Profile = sketch11
pad5.Length = 1.2
pad5.Reversed = True

doc.recompute()
